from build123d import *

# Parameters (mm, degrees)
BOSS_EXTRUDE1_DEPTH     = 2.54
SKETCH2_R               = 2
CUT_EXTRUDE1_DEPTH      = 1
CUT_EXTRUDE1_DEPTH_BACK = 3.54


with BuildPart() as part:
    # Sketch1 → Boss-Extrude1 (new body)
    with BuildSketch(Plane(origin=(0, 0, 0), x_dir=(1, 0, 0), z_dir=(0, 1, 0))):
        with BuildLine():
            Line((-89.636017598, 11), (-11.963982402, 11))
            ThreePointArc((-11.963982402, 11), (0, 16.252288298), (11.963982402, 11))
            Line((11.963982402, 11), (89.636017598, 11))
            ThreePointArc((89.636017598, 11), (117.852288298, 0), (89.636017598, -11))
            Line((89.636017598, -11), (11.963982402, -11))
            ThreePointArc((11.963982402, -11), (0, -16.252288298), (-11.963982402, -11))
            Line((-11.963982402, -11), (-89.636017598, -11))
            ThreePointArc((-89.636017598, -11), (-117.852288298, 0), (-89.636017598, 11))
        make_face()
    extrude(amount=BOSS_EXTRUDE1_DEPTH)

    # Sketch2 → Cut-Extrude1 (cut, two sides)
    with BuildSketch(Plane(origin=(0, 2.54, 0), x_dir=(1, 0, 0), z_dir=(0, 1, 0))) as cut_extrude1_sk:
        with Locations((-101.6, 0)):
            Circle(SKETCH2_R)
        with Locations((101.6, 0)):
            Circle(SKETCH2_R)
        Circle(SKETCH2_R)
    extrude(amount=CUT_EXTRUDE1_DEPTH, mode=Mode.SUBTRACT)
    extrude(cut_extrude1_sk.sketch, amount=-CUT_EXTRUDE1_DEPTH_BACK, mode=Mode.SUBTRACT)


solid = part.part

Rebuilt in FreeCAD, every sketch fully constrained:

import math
import FreeCAD as App
import Part
import Sketcher

doc = App.newDocument("Part")
body = doc.addObject("PartDesign::Body", "Body")

# Sketch on XZ plane
sketch1 = body.newObject("Sketcher::SketchObject", "Sketch")
sketch1.AttachmentSupport = (doc.getObject("XZ_Plane"), [""])
sketch1.MapMode = "FlatFace"
sketch1.addGeometry([
    Part.LineSegment(App.Vector(-11.963982, -11, 0), App.Vector(-89.636018, -11, 0)),  # 0
    Part.ArcOfCircle(Part.Circle(App.Vector(-101.6, 0, 0), App.Vector(0, 0, 1), 16.252288), math.radians(42.596248), math.radians(317.403752)),  # 1
    Part.LineSegment(App.Vector(-89.636018, 11, 0), App.Vector(-11.963982, 11, 0)),  # 2
    Part.ArcOfCircle(Part.Circle(App.Vector(0, 0, 0), App.Vector(0, 0, 1), 16.252288), math.radians(42.596248), math.radians(137.403752)),  # 3
    Part.LineSegment(App.Vector(11.963982, 11, 0), App.Vector(89.636018, 11, 0)),  # 4
    Part.ArcOfCircle(Part.Circle(App.Vector(101.6, 0, 0), App.Vector(0, 0, 1), 16.252288), math.radians(-137.403752), math.radians(137.403752)),  # 5
    Part.LineSegment(App.Vector(89.636018, -11, 0), App.Vector(11.963982, -11, 0)),  # 6
    Part.ArcOfCircle(Part.Circle(App.Vector(0, 0, 0), App.Vector(0, 0, 1), 16.252288), math.radians(-137.403752), math.radians(-42.596248)),  # 7
], False)
sketch1.addConstraint([
    Sketcher.Constraint("Coincident", 0, 2, 1, 2),
    Sketcher.Constraint("Coincident", 1, 1, 2, 1),
    Sketcher.Constraint("Coincident", 2, 2, 3, 2),
    Sketcher.Constraint("Coincident", 3, 1, 4, 1),
    Sketcher.Constraint("Coincident", 4, 2, 5, 2),
    Sketcher.Constraint("Coincident", 5, 1, 6, 1),
    Sketcher.Constraint("Coincident", 6, 2, 7, 2),
    Sketcher.Constraint("Coincident", 7, 1, 0, 1),
    Sketcher.Constraint("Horizontal", 0),
    Sketcher.Constraint("Horizontal", 2),
    Sketcher.Constraint("Horizontal", 4),
    Sketcher.Constraint("Horizontal", 6),
    Sketcher.Constraint("Coincident", 3, 3, -1, 1),
    Sketcher.Constraint("Coincident", 7, 3, -1, 1),
    Sketcher.Constraint("Equal", 1, 3),
    Sketcher.Constraint("Equal", 3, 5),
    Sketcher.Constraint("Equal", 5, 7),
    Sketcher.Constraint("Symmetric", 1, 3, 5, 3, -1, 1),
    Sketcher.Constraint("Symmetric", 1, 1, 4, 2, -2),
    Sketcher.Constraint("Horizontal", 0, 2, 5, 1),
    Sketcher.Constraint("Vertical", 0, 2, 1, 1),
    Sketcher.Constraint("DistanceY", 0, 2, -1, 1, 11.0),
    Sketcher.Constraint("DistanceX", 1, 3, -1, 1, 101.6),
    Sketcher.Constraint("Radius", 1, 16.252288),
])
pad1 = body.newObject("PartDesign::Pad", "Pad")
pad1.Profile = sketch1
pad1.Length = 2.54
pad1.Reversed = True

# Sketch on XZ plane
sketch2 = body.newObject("Sketcher::SketchObject", "Sketch001")
sketch2.AttachmentSupport = (doc.getObject("XZ_Plane"), [""])
sketch2.MapMode = "FlatFace"
sketch2.AttachmentOffset = App.Placement(App.Vector(0, 0, -2.54), App.Rotation())
sketch2.addGeometry([
    Part.Circle(App.Vector(-101.6, 0, 0), App.Vector(0, 0, 1), 2),
    Part.Circle(App.Vector(101.6, 0, 0), App.Vector(0, 0, 1), 2),
    Part.Circle(App.Vector(0, 0, 0), App.Vector(0, 0, 1), 2),
], False)
sketch2.addConstraint([
    Sketcher.Constraint("Coincident", 2, 3, -1, 1),
    Sketcher.Constraint("Equal", 0, 1),
    Sketcher.Constraint("Equal", 1, 2),
    Sketcher.Constraint("Symmetric", 0, 3, 1, 3, -1, 1),
    Sketcher.Constraint("PointOnObject", 0, 3, -1),
    Sketcher.Constraint("Diameter", 0, 4.0),
    Sketcher.Constraint("DistanceX", 0, 3, -1, 1, 101.6),
])
pocket1 = body.newObject("PartDesign::Pocket", "Pocket")
pocket1.Profile = sketch2
pocket1.Type = "ThroughAll"
pocket1.Midplane = True

doc.recompute()
